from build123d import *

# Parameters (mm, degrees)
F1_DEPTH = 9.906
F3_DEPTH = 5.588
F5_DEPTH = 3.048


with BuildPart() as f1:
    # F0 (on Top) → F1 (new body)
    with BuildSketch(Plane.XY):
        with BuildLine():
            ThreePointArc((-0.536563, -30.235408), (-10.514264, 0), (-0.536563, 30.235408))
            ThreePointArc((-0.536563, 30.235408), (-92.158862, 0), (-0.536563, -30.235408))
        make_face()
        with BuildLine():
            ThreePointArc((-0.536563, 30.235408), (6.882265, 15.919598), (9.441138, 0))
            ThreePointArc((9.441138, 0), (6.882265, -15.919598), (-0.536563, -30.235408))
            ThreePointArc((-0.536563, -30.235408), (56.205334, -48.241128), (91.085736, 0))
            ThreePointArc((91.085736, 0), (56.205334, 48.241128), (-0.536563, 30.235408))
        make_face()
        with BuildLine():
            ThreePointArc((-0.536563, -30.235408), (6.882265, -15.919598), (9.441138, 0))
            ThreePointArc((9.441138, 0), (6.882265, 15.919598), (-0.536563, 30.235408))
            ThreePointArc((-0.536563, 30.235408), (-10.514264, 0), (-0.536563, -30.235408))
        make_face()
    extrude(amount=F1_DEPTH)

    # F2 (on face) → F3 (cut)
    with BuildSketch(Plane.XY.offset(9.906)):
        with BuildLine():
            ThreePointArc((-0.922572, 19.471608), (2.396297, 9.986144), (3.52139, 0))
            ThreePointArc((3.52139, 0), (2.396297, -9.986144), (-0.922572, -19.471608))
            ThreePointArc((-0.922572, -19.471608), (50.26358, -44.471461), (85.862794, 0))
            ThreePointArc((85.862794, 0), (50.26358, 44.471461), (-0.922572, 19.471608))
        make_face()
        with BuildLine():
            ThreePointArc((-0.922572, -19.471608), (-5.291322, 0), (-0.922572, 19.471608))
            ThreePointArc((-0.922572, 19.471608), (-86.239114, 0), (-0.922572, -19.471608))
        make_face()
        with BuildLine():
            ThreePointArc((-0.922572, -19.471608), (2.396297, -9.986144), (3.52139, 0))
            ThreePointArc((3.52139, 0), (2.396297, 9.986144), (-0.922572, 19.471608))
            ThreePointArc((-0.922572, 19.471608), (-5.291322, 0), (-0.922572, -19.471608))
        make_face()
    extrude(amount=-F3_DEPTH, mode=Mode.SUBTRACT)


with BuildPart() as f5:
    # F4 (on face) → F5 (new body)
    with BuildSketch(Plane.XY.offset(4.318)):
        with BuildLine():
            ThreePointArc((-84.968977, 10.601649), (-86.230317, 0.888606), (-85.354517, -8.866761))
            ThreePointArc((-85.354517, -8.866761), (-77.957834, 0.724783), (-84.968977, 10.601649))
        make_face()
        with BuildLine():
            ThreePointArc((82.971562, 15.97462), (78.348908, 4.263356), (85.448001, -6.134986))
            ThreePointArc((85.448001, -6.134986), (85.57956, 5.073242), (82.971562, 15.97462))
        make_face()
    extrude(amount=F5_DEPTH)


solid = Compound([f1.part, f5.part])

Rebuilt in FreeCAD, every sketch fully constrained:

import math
import FreeCAD as App
import Part
import Sketcher

V = App.Vector
Q = App.Units.Quantity

doc = App.newDocument("Part")
body = doc.addObject("PartDesign::Body", "Body")

# Sketch on XY plane
sketch1 = doc.addObject("Sketcher::SketchObject", "Sketch")
body.addObject(sketch1)
sketch1.AttachmentSupport = (doc.XY_Plane, [""])
sketch1.MapMode = "FlatFace"
sketch1.addGeometry([
    Part.ArcOfCircle(Part.Circle(V(-41.358862, 0, 0), V(0, 0, 1), 50.8), math.radians(36.525836), math.radians(323.474164)),
    Part.ArcOfCircle(Part.Circle(V(40.285736, 0, 0), V(0, 0, 1), 50.8), math.radians(-143.474165), math.radians(0.000001)),
    Part.ArcOfCircle(Part.Circle(V(40.285736, 0, 0), V(0, 0, 1), 50.8), math.radians(-0.000001), math.radians(143.474165)),
], False)
sketch1.addConstraint([
    Sketcher.Constraint("Coincident", 0, 2, 1, 1),
    Sketcher.Constraint("Tangent", 1, 2, 2, 1),
    Sketcher.Constraint("Coincident", 2, 2, 0, 1),
    Sketcher.Constraint("Equal", 0, 1),
    Sketcher.Constraint("Equal", 1, 2),
    Sketcher.Constraint("Symmetric", 0, 2, 2, 2, -1),
    Sketcher.Constraint("PointOnObject", 1, 2, -1),
    Sketcher.Constraint("Radius", 0, Q("2 in")),
    Sketcher.Constraint("DistanceX", 0, 3, 1, 3, Q("81.644598 mm")),
    Sketcher.Constraint("DistanceX", 0, 3, -1, 1, Q("41.358862 mm")),
])
pad1 = doc.addObject("PartDesign::Pad", "Pad")
body.addObject(pad1)
pad1.Profile = sketch1
pad1.Length = Q("0.39 in")

# Sketch on XY plane
sketch2 = doc.addObject("Sketcher::SketchObject", "Sketch001")
body.addObject(sketch2)
sketch2.AttachmentSupport = (doc.XY_Plane, [""])
sketch2.MapMode = "FlatFace"
sketch2.AttachmentOffset = App.Placement(V(0, 0, 0.39 * 25.4), App.Rotation())
sketch2.addGeometry([
    Part.ArcOfCircle(Part.Circle(V(40.285736, 0, 0), V(0, 0, 1), 45.577058), math.radians(-154.70849), math.radians(0)),
    Part.ArcOfCircle(Part.Circle(V(40.285736, 0, 0), V(0, 0, 1), 45.577058), math.radians(0), math.radians(154.70849)),
    Part.ArcOfCircle(Part.Circle(V(-41.358862, 0, 0), V(0, 0, 1), 44.880252), math.radians(25.71258), math.radians(334.28742)),
], False)
sketch2.addConstraint([
    Sketcher.Constraint("Tangent", 0, 2, 1, 1),
    Sketcher.Constraint("Coincident", 1, 2, 2, 1),
    Sketcher.Constraint("Coincident", 2, 2, 0, 1),
    Sketcher.Constraint("Equal", 0, 1),
    Sketcher.Constraint("Symmetric", 1, 2, 2, 2, -1),
    Sketcher.Constraint("PointOnObject", 0, 2, -1),
    Sketcher.Constraint("Radius", 0, Q("45.577058 mm")),
    Sketcher.Constraint("Radius", 2, Q("44.880252 mm")),
    Sketcher.Constraint("DistanceX", 2, 3, 0, 3, Q("81.644598 mm")),
    Sketcher.Constraint("DistanceX", 2, 3, -1, 1, Q("41.358862 mm")),
])
pocket1 = doc.addObject("PartDesign::Pocket", "Pocket")
body.addObject(pocket1)
pocket1.Profile = sketch2
pocket1.Length = Q("0.22 in")
body2 = doc.addObject("PartDesign::Body", "Body001")
body2.AllowCompound = True

# Sketch on XY plane
sketch3 = doc.addObject("Sketcher::SketchObject", "Sketch002")
body2.addObject(sketch3)
sketch3.AttachmentSupport = (doc.getObject("XY_Plane001"), [""])
sketch3.MapMode = "FlatFace"
sketch3.AttachmentOffset = App.Placement(V(0, 0, 0.17 * 25.4), App.Rotation())
sketch3.addGeometry([
    Part.ArcOfCircle(Part.Circle(V(-41.358859, -0.000001, 0), V(0, 0, 1), 44.880256), math.radians(166.336405), math.radians(191.394593)),
    Part.ArcOfCircle(Part.Circle(V(-88.136407, 0.926352, 0), V(0, 0, 1), 10.180569), math.radians(-74.141957), math.radians(71.872955)),
    Part.ArcOfCircle(Part.Circle(V(91.705152, 5.759354, 0), V(0, 0, 1), 13.439764), math.radians(130.528942), math.radians(242.252884)),
    Part.ArcOfCircle(Part.Circle(V(40.285753, 0.000002, 0), V(0, 0, 1), 45.577041), math.radians(-7.735894), math.radians(20.51772)),
], False)
sketch3.addConstraint([
    Sketcher.Constraint("Coincident", 0, 1, 1, 2),
    Sketcher.Constraint("Coincident", 1, 1, 0, 2),
    Sketcher.Constraint("Coincident", 2, 1, 3, 2),
    Sketcher.Constraint("Coincident", 3, 1, 2, 2),
    Sketcher.Constraint("PointOnObject", 0, 3, -1),
    Sketcher.Constraint("PointOnObject", 3, 3, -1),
    Sketcher.Constraint("Radius", 1, Q("10.180569 mm")),
    Sketcher.Constraint("Radius", 3, Q("45.577041 mm")),
    Sketcher.Constraint("Radius", 0, Q("44.880256 mm")),
    Sketcher.Constraint("Radius", 2, Q("13.439764 mm")),
    Sketcher.Constraint("DistanceX", -1, 1, 3, 1, Q("85.448001 mm")),
    Sketcher.Constraint("DistanceY", 1, 3, 2, 3, Q("4.833001 mm")),
    Sketcher.Constraint("DistanceX", 3, 3, 2, 3, Q("51.419398 mm")),
    Sketcher.Constraint("DistanceX", 0, 3, -1, 1, Q("41.358859 mm")),
    Sketcher.Constraint("DistanceX", -1, 1, 2, 3, Q("91.705152 mm")),
    Sketcher.Constraint("DistanceY", -1, 1, 0, 1, Q("10.601649 mm")),
])
pad2 = doc.addObject("PartDesign::Pad", "Pad001")
body2.addObject(pad2)
pad2.Profile = sketch3
pad2.Length = Q("0.12 in")

doc.recompute()
